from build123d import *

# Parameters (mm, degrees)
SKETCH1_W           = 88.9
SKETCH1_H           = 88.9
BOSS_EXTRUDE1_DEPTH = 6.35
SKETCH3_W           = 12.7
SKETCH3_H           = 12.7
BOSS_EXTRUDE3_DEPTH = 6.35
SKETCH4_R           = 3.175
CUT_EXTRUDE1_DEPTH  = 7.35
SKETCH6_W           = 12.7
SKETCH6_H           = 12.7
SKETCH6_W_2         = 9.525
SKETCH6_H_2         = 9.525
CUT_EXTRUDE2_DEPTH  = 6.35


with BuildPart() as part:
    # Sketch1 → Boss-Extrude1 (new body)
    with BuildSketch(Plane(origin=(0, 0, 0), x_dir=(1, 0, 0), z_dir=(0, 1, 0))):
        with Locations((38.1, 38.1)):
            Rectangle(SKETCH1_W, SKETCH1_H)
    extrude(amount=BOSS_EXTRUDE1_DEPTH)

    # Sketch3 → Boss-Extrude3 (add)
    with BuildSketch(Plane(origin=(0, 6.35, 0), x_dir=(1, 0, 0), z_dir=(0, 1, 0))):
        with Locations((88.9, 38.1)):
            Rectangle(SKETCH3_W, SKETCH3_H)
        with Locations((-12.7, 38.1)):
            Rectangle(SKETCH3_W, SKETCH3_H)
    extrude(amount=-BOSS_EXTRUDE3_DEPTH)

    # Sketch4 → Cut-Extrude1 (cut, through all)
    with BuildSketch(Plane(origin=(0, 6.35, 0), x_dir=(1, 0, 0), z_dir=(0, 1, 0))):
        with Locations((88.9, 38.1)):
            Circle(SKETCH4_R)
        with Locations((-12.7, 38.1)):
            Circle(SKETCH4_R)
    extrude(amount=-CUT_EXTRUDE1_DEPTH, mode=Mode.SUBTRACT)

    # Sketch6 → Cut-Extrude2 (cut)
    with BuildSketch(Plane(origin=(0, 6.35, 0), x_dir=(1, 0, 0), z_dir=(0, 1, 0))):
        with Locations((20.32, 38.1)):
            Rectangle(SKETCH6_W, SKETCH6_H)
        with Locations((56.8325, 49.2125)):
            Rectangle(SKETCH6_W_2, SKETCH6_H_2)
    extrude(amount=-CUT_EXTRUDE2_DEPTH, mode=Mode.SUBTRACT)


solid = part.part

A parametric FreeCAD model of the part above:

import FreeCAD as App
import Part
import Sketcher

V = App.Vector
Q = App.Units.Quantity

doc = App.newDocument("Part")
body = doc.addObject("PartDesign::Body", "Body")

# Sketch on XZ plane
sketch1 = doc.addObject("Sketcher::SketchObject", "Sketch")
body.addObject(sketch1)
sketch1.AttachmentSupport = (doc.XZ_Plane, [""])
sketch1.MapMode = "FlatFace"
sketch1.addGeometry([
    Part.LineSegment(V(-6.35, -82.55, 0), V(-6.35, 6.35, 0)),
    Part.LineSegment(V(-6.35, 6.35, 0), V(82.55, 6.35, 0)),
    Part.LineSegment(V(82.55, 6.35, 0), V(82.55, -82.55, 0)),
    Part.LineSegment(V(82.55, -82.55, 0), V(-6.35, -82.55, 0)),
], False)
sketch1.addConstraint([
    Sketcher.Constraint("Coincident", 0, 2, 1, 1),
    Sketcher.Constraint("Coincident", 1, 2, 2, 1),
    Sketcher.Constraint("Coincident", 2, 2, 3, 1),
    Sketcher.Constraint("Coincident", 3, 2, 0, 1),
    Sketcher.Constraint("Vertical", 0),
    Sketcher.Constraint("Horizontal", 1),
    Sketcher.Constraint("Vertical", 2),
    Sketcher.Constraint("Horizontal", 3),
    Sketcher.Constraint("Equal", 3, 0),
    Sketcher.Constraint("DistanceX", 1, 1, 1, 2, Q("3.5 in")),
    Sketcher.Constraint("DistanceX", 0, 2, -1, 1, Q("0.25 in")),
    Sketcher.Constraint("DistanceY", -1, 1, 0, 2, Q("0.25 in")),
])
pad1 = doc.addObject("PartDesign::Pad", "Pad")
body.addObject(pad1)
pad1.Profile = sketch1
pad1.Length = Q("0.25 in")
pad1.Reversed = True

# Sketch on XZ plane
sketch2 = doc.addObject("Sketcher::SketchObject", "Sketch001")
body.addObject(sketch2)
sketch2.AttachmentSupport = (doc.XZ_Plane, [""])
sketch2.MapMode = "FlatFace"
sketch2.AttachmentOffset = App.Placement(V(0, 0, -0.25 * 25.4), App.Rotation())
sketch2.addGeometry([
    Part.LineSegment(V(82.55, -44.45, 0), V(82.55, -31.75, 0)),  # 0
    Part.LineSegment(V(82.55, -31.75, 0), V(95.25, -31.75, 0)),  # 1
    Part.LineSegment(V(95.25, -31.75, 0), V(95.25, -44.45, 0)),  # 2
    Part.LineSegment(V(95.25, -44.45, 0), V(82.55, -44.45, 0)),  # 3
    Part.LineSegment(V(-19.05, -44.45, 0), V(-19.05, -31.75, 0)),  # 4
    Part.LineSegment(V(-19.05, -31.75, 0), V(-6.35, -31.75, 0)),  # 5
    Part.LineSegment(V(-6.35, -31.75, 0), V(-6.35, -44.45, 0)),  # 6
    Part.LineSegment(V(-6.35, -44.45, 0), V(-19.05, -44.45, 0)),  # 7
], False)
sketch2.addConstraint([
    Sketcher.Constraint("Coincident", 0, 2, 1, 1),
    Sketcher.Constraint("Coincident", 1, 2, 2, 1),
    Sketcher.Constraint("Coincident", 2, 2, 3, 1),
    Sketcher.Constraint("Coincident", 3, 2, 0, 1),
    Sketcher.Constraint("Coincident", 4, 2, 5, 1),
    Sketcher.Constraint("Coincident", 5, 2, 6, 1),
    Sketcher.Constraint("Coincident", 6, 2, 7, 1),
    Sketcher.Constraint("Coincident", 7, 2, 4, 1),
    Sketcher.Constraint("Vertical", 0),
    Sketcher.Constraint("Horizontal", 1),
    Sketcher.Constraint("Vertical", 2),
    Sketcher.Constraint("Horizontal", 3),
    Sketcher.Constraint("Vertical", 4),
    Sketcher.Constraint("Horizontal", 5),
    Sketcher.Constraint("Vertical", 6),
    Sketcher.Constraint("Horizontal", 7),
    Sketcher.Constraint("Horizontal", 1, 2, 4, 2),
    Sketcher.Constraint("Horizontal", 3, 2, 6, 2),
    Sketcher.Constraint("Equal", 3, 5),
    Sketcher.Constraint("Equal", 7, 0),
    Sketcher.Constraint("DistanceX", 1, 1, 1, 2, Q("0.5 in")),
    Sketcher.Constraint("DistanceX", 4, 2, 0, 2, Q("4 in")),
    Sketcher.Constraint("DistanceX", -1, 1, 0, 2, Q("3.25 in")),
    Sketcher.Constraint("DistanceY", 0, 2, -1, 1, Q("1.25 in")),
])
pad2 = doc.addObject("PartDesign::Pad", "Pad001")
body.addObject(pad2)
pad2.Profile = sketch2
pad2.Length = Q("0.25 in")

# Sketch on XZ plane
sketch3 = doc.addObject("Sketcher::SketchObject", "Sketch002")
body.addObject(sketch3)
sketch3.AttachmentSupport = (doc.XZ_Plane, [""])
sketch3.MapMode = "FlatFace"
sketch3.AttachmentOffset = App.Placement(V(0, 0, -0.25 * 25.4), App.Rotation())
sketch3.addGeometry([
    Part.Circle(V(88.9, -38.1, 0), V(0, 0, 1), 3.175),
    Part.Circle(V(-12.7, -38.1, 0), V(0, 0, 1), 3.175),
], False)
sketch3.addConstraint([
    Sketcher.Constraint("Equal", 0, 1),
    Sketcher.Constraint("Horizontal", 0, 3, 1, 3),
    Sketcher.Constraint("Diameter", 0, Q("0.25 in")),
    Sketcher.Constraint("DistanceX", 1, 3, 0, 3, Q("4 in")),
    Sketcher.Constraint("DistanceX", -1, 1, 0, 3, Q("3.5 in")),
    Sketcher.Constraint("DistanceY", 0, 3, -1, 1, Q("1.5 in")),
])
pocket1 = doc.addObject("PartDesign::Pocket", "Pocket")
body.addObject(pocket1)
pocket1.Profile = sketch3
pocket1.Type = "ThroughAll"
pocket1.Reversed = True

# Sketch on XZ plane
sketch4 = doc.addObject("Sketcher::SketchObject", "Sketch003")
body.addObject(sketch4)
sketch4.AttachmentSupport = (doc.XZ_Plane, [""])
sketch4.MapMode = "FlatFace"
sketch4.AttachmentOffset = App.Placement(V(0, 0, -0.25 * 25.4), App.Rotation())
sketch4.addGeometry([
    Part.LineSegment(V(13.97, -44.45, 0), V(13.97, -31.75, 0)),  # 0
    Part.LineSegment(V(13.97, -31.75, 0), V(26.67, -31.75, 0)),  # 1
    Part.LineSegment(V(26.67, -31.75, 0), V(26.67, -44.45, 0)),  # 2
    Part.LineSegment(V(26.67, -44.45, 0), V(13.97, -44.45, 0)),  # 3
    Part.LineSegment(V(52.07, -53.975, 0), V(52.07, -44.45, 0)),  # 4
    Part.LineSegment(V(52.07, -44.45, 0), V(61.595, -44.45, 0)),  # 5
    Part.LineSegment(V(61.595, -44.45, 0), V(61.595, -53.975, 0)),  # 6
    Part.LineSegment(V(61.595, -53.975, 0), V(52.07, -53.975, 0)),  # 7
], False)
sketch4.addConstraint([
    Sketcher.Constraint("Coincident", 0, 2, 1, 1),
    Sketcher.Constraint("Coincident", 1, 2, 2, 1),
    Sketcher.Constraint("Coincident", 2, 2, 3, 1),
    Sketcher.Constraint("Coincident", 3, 2, 0, 1),
    Sketcher.Constraint("Coincident", 4, 2, 5, 1),
    Sketcher.Constraint("Coincident", 5, 2, 6, 1),
    Sketcher.Constraint("Coincident", 6, 2, 7, 1),
    Sketcher.Constraint("Coincident", 7, 2, 4, 1),
    Sketcher.Constraint("Vertical", 0),
    Sketcher.Constraint("Horizontal", 1),
    Sketcher.Constraint("Vertical", 2),
    Sketcher.Constraint("Horizontal", 3),
    Sketcher.Constraint("Vertical", 4),
    Sketcher.Constraint("Horizontal", 5),
    Sketcher.Constraint("Vertical", 6),
    Sketcher.Constraint("Horizontal", 7),
    Sketcher.Constraint("Horizontal", 3, 2, 4, 2),
    Sketcher.Constraint("Equal", 3, 0),
    Sketcher.Constraint("Equal", 7, 4),
    Sketcher.Constraint("DistanceX", 1, 1, 1, 2, Q("0.5 in")),
    Sketcher.Constraint("DistanceX", 2, 2, 4, 2, Q("1 in")),
    Sketcher.Constraint("DistanceX", 5, 1, 5, 2, Q("0.375 in")),
    Sketcher.Constraint("DistanceX", -1, 1, 0, 2, Q("0.55 in")),
    Sketcher.Constraint("DistanceY", 0, 2, -1, 1, Q("1.25 in")),
])
pocket2 = doc.addObject("PartDesign::Pocket", "Pocket001")
body.addObject(pocket2)
pocket2.Profile = sketch4
pocket2.Length = Q("0.25 in")
pocket2.Reversed = True

doc.recompute()
